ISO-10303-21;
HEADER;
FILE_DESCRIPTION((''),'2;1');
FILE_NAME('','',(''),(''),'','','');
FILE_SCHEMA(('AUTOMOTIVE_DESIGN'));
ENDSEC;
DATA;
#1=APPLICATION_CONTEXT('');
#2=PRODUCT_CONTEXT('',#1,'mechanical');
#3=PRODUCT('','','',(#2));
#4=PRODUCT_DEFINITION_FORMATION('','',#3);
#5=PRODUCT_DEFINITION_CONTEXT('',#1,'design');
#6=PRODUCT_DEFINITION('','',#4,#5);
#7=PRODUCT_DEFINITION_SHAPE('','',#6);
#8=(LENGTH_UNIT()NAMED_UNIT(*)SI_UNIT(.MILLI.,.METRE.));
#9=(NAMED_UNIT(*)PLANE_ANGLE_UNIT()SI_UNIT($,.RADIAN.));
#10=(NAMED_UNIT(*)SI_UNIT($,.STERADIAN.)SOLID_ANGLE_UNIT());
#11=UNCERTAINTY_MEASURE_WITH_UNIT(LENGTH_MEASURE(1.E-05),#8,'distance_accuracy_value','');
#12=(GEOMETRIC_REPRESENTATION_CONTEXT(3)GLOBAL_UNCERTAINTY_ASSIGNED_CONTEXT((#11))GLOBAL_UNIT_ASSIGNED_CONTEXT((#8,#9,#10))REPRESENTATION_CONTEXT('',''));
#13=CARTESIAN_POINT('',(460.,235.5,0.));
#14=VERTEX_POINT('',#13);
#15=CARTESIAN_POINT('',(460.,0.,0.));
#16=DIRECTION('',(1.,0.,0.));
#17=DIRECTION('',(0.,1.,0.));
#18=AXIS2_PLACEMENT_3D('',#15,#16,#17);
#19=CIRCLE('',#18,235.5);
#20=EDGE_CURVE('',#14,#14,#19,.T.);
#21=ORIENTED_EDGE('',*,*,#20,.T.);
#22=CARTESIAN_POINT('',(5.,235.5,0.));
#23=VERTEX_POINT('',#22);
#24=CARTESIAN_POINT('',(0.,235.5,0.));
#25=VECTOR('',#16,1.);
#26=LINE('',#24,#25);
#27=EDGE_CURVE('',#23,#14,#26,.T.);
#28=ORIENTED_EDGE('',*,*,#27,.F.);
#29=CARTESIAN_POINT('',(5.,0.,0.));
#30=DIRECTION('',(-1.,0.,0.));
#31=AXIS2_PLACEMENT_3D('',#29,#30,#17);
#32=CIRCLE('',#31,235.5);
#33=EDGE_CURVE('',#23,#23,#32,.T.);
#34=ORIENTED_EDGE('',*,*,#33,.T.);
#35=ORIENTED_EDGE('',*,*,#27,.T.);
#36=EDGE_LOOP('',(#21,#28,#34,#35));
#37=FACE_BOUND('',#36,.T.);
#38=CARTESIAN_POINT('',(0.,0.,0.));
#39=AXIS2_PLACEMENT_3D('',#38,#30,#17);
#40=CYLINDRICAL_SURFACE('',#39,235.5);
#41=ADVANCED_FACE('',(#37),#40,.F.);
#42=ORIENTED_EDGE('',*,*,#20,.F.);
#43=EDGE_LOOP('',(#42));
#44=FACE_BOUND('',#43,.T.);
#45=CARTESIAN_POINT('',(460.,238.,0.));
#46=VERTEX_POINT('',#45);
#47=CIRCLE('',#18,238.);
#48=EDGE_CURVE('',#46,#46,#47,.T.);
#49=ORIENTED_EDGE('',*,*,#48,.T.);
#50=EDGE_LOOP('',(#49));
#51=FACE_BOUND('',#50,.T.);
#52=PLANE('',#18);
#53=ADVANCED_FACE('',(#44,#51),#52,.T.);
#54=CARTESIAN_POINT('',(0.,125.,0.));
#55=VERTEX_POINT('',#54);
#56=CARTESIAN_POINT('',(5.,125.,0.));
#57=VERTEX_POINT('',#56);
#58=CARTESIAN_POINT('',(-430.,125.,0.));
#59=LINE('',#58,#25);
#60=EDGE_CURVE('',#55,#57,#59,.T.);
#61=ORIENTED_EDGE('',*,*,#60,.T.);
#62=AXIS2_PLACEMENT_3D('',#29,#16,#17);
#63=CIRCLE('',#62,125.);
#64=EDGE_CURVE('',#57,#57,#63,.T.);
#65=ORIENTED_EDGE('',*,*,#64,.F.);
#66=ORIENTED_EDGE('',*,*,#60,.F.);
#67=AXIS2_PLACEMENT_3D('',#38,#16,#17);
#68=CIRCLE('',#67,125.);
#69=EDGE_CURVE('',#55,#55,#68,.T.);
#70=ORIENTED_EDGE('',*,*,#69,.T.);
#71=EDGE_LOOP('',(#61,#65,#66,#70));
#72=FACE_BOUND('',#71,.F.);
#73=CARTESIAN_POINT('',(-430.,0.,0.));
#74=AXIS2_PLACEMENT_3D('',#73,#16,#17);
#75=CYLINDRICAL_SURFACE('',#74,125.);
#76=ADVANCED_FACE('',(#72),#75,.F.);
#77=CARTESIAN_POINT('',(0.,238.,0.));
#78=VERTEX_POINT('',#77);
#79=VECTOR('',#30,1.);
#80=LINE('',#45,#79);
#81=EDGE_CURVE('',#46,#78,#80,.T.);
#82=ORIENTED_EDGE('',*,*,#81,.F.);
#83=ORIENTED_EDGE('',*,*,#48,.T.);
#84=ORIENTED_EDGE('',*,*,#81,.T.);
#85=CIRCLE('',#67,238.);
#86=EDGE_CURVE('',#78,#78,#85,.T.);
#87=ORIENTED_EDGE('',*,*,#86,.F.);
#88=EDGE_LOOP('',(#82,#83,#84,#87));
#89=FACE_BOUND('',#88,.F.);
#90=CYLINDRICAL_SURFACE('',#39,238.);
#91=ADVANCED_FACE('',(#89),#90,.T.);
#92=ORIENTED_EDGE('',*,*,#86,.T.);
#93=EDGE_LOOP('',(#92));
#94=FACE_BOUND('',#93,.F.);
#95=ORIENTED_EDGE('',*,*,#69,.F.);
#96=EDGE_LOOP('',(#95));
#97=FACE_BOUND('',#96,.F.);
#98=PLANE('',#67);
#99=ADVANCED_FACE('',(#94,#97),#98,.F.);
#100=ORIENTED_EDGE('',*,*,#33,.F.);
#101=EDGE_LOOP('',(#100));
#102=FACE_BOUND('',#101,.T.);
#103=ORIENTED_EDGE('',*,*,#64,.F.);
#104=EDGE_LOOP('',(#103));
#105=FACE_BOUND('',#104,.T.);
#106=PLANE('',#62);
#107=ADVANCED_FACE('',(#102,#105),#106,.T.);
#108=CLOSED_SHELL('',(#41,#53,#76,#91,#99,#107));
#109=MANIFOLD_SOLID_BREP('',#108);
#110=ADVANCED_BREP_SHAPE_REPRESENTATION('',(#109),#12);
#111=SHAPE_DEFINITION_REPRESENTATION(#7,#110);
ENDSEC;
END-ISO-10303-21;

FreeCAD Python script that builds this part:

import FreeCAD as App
import Part
import Sketcher

V = App.Vector

doc = App.newDocument("Part")
body = doc.addObject("PartDesign::Body", "Body")

sketch1 = body.newObject("Sketcher::SketchObject", "Sketch")
sketch1.AttachmentSupport = (doc.getObject("YZ_Plane"), [""])
sketch1.MapMode = "FlatFace"
sketch1.addGeometry([
    Part.Circle(V(0, 0, 0), V(0, 0, 1), 238),
    Part.Circle(V(0, 0, 0), V(0, 0, 1), 236),
], False)
sketch1.addConstraint([
    Sketcher.Constraint("Coincident", 0, 3, -1, 1),
    Sketcher.Constraint("Coincident", 1, 3, -1, 1),
    Sketcher.Constraint("Diameter", 0, 476.0),
    Sketcher.Constraint("Diameter", 1, 471.0),
])
pad1 = body.newObject("PartDesign::Pad", "Pad")
pad1.Profile = sketch1
pad1.Length = 460

sketch2 = body.newObject("Sketcher::SketchObject", "Sketch001")
sketch2.AttachmentSupport = (doc.getObject("YZ_Plane"), [""])
sketch2.MapMode = "FlatFace"
sketch2.addGeometry(Part.Circle(V(0, 0, 0), V(0, 0, 1), 238), False)
sketch2.addConstraint([
    Sketcher.Constraint("Coincident", 0, 3, -1, 1),
    Sketcher.Constraint("Diameter", 0, 476.0),
])
pad2 = body.newObject("PartDesign::Pad", "Pad001")
pad2.Profile = sketch2
pad2.Length = 5

sketch3 = body.newObject("Sketcher::SketchObject", "Sketch002")
sketch3.AttachmentSupport = (doc.getObject("YZ_Plane"), [""])
sketch3.MapMode = "FlatFace"
sketch3.addGeometry(Part.Circle(V(0, 0, 0), V(0, 0, 1), 125), False)
sketch3.addConstraint([
    Sketcher.Constraint("Coincident", 0, 3, -1, 1),
    Sketcher.Constraint("Diameter", 0, 250.0),
])
doc.recompute()
hole = body.newObject("PartDesign::Hole", "Hole")
hole.Profile = sketch3
hole.ThreadType = "None"
hole.Diameter = 250
hole.DepthType = "Dimension"
hole.Depth = 430
hole.DrillPoint = "Flat"
hole.Reversed = True

doc.recompute()
